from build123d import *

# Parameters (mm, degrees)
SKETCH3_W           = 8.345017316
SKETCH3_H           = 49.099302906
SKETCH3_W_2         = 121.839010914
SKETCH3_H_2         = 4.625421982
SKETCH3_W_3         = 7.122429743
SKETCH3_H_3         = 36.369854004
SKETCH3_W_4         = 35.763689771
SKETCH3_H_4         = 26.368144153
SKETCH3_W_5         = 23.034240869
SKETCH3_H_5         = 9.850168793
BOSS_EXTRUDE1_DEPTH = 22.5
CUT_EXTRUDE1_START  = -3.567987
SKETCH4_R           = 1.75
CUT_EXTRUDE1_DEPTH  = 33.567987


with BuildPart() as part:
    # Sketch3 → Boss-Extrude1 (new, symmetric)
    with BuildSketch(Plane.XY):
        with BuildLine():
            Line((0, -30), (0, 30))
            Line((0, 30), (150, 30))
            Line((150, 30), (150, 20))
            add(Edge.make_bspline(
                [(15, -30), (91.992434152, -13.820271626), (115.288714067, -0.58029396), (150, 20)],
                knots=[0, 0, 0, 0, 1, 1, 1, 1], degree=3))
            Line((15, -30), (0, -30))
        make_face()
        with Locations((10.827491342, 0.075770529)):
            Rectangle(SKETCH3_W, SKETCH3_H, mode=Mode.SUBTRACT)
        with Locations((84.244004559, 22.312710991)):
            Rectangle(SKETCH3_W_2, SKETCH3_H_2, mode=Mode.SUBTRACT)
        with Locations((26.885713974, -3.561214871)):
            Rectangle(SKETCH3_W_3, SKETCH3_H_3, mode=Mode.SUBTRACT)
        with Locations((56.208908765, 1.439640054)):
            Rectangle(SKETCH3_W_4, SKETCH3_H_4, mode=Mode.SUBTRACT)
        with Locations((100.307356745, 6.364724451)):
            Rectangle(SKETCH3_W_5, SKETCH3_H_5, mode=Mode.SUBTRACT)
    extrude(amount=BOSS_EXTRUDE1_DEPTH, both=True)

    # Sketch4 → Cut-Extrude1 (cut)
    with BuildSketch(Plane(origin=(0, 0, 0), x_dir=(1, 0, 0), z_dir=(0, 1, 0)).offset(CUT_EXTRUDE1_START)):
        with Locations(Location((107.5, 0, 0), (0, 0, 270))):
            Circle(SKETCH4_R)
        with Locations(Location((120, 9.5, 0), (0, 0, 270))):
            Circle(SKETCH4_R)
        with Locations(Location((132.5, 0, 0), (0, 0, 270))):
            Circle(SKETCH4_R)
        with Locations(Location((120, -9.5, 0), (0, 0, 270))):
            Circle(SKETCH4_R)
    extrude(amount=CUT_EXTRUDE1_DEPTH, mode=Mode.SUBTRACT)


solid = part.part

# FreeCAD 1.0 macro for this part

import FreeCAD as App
import Part
import Sketcher

V = App.Vector


def add_polygon(sketch, points):
    """Adds a closed chain of lines whose ends are joined by coincident constraints."""
    first, n = sketch.GeometryCount, len(points)
    for a, b in zip(points, points[1:] + points[:1]):
        sketch.addGeometry(Part.LineSegment(App.Vector(*a, 0), App.Vector(*b, 0)), False)
    for i in range(n):
        sketch.addConstraint(Sketcher.Constraint("Coincident", first + i, 2, first + (i + 1) % n, 1))

doc = App.newDocument("Part")
params = doc.addObject("Spreadsheet::Sheet", "Params")
for row, (alias, value) in enumerate([
    ("pad1_length", "45 mm"),
    ("sketch2_diameter", "3.5 mm"),
    ("pocket1_length", "33.567987 mm"),
], start=1):
    params.set(f"A{row}", alias)
    params.set(f"B{row}", "=" + value)
    params.setAlias(f"B{row}", alias)

body = doc.addObject("PartDesign::Body", "Body")

# Sketch on XY plane
sketch1 = body.newObject("Sketcher::SketchObject", "Sketch")
sketch1.AttachmentSupport = (doc.getObject("XY_Plane"), [""])
sketch1.MapMode = "FlatFace"
sketch1.addGeometry(Part.LineSegment(V(0, 30, 0), V(0, -30, 0)), False)  # 0
sketch1.addGeometry(Part.LineSegment(V(0, -30, 0), V(15, -30, 0)), False)  # 1
sketch1.addGeometry(Part.BSplineCurve([V(15, -30, 0), V(91.992434, -13.820272, 0), V(115.288714, -0.580294, 0), V(150, 20, 0)], [4, 4], [0, 1], False, 3, [1, 1, 1, 1], False), False)  # 2
sketch1.addGeometry(Part.LineSegment(V(150, 20, 0), V(150, 30, 0)), False)  # 3
sketch1.addGeometry(Part.LineSegment(V(150, 30, 0), V(0, 30, 0)), False)  # 4
add_polygon(sketch1, [(23.324499, -21.746142), (23.324499, 14.623712), (30.446929, 14.623712), (30.446929, -21.746142)])  # lines 5-8
add_polygon(sketch1, [(6.654983, -24.473881), (6.654983, 24.625422), (15, 24.625422), (15, -24.473881)])  # lines 9-12
add_polygon(sketch1, [(88.790236, 1.43964), (88.790236, 11.289809), (111.824477, 11.289809), (111.824477, 1.43964)])  # lines 13-16
add_polygon(sketch1, [(23.324499, 20), (23.324499, 24.625422), (145.16351, 24.625422), (145.16351, 20)])  # lines 17-20
add_polygon(sketch1, [(38.327064, -11.744432), (38.327064, 14.623712), (74.090754, 14.623712), (74.090754, -11.744432)])  # lines 21-24
sketch1.addConstraint(Sketcher.Constraint("Block", 2))
sketch1.addConstraint(Sketcher.Constraint("Coincident", 0, 2, 1, 1))
sketch1.addConstraint(Sketcher.Constraint("Coincident", 1, 2, 2, 1))
sketch1.addConstraint(Sketcher.Constraint("Coincident", 2, 2, 3, 1))
sketch1.addConstraint(Sketcher.Constraint("Coincident", 3, 2, 4, 1))
sketch1.addConstraint(Sketcher.Constraint("Coincident", 4, 2, 0, 1))
sketch1.addConstraint(Sketcher.Constraint("Vertical", 0))
sketch1.addConstraint(Sketcher.Constraint("Horizontal", 1))
sketch1.addConstraint(Sketcher.Constraint("Vertical", 3))
sketch1.addConstraint(Sketcher.Constraint("Horizontal", 4))
sketch1.addConstraint(Sketcher.Constraint("Vertical", 5))
sketch1.addConstraint(Sketcher.Constraint("Horizontal", 6))
sketch1.addConstraint(Sketcher.Constraint("Vertical", 7))
sketch1.addConstraint(Sketcher.Constraint("Horizontal", 8))
sketch1.addConstraint(Sketcher.Constraint("Vertical", 9))
sketch1.addConstraint(Sketcher.Constraint("Horizontal", 10))
sketch1.addConstraint(Sketcher.Constraint("Vertical", 11))
sketch1.addConstraint(Sketcher.Constraint("Horizontal", 12))
sketch1.addConstraint(Sketcher.Constraint("Vertical", 13))
sketch1.addConstraint(Sketcher.Constraint("Horizontal", 14))
sketch1.addConstraint(Sketcher.Constraint("Vertical", 15))
sketch1.addConstraint(Sketcher.Constraint("Horizontal", 16))
sketch1.addConstraint(Sketcher.Constraint("Vertical", 17))
sketch1.addConstraint(Sketcher.Constraint("Horizontal", 18))
sketch1.addConstraint(Sketcher.Constraint("Vertical", 19))
sketch1.addConstraint(Sketcher.Constraint("Horizontal", 20))
sketch1.addConstraint(Sketcher.Constraint("Vertical", 21))
sketch1.addConstraint(Sketcher.Constraint("Horizontal", 22))
sketch1.addConstraint(Sketcher.Constraint("Vertical", 23))
sketch1.addConstraint(Sketcher.Constraint("Horizontal", 24))
sketch1.addConstraint(Sketcher.Constraint("Symmetric", 0, 2, 4, 2, -1, 1))
sketch1.addConstraint(Sketcher.Constraint("Horizontal", 10, 2, 17, 2))
sketch1.addConstraint(Sketcher.Constraint("Horizontal", 6, 2, 21, 2))
sketch1.addConstraint(Sketcher.Constraint("Vertical", 1, 2, 10, 2))
sketch1.addConstraint(Sketcher.Constraint("Vertical", 8, 2, 17, 2))
sketch1.addConstraint(Sketcher.Constraint("DistanceY", -1, 1, 19, 2, 20.0))
sketch1.addConstraint(Sketcher.Constraint("DistanceX", 6, 1, 6, 2, 7.12243))
sketch1.addConstraint(Sketcher.Constraint("DistanceX", 14, 1, 14, 2, 23.034241))
sketch1.addConstraint(Sketcher.Constraint("DistanceX", 18, 1, 18, 2, 121.839011))
sketch1.addConstraint(Sketcher.Constraint("DistanceX", 22, 1, 22, 2, 35.76369))
sketch1.addConstraint(Sketcher.Constraint("DistanceY", 13, 1, 13, 2, 9.850169))
sketch1.addConstraint(Sketcher.Constraint("DistanceY", 17, 1, 17, 2, 4.625422))
sketch1.addConstraint(Sketcher.Constraint("DistanceX", -1, 1, 5, 2, 23.324499))
sketch1.addConstraint(Sketcher.Constraint("DistanceX", 10, 1, 10, 2, 8.345017))
sketch1.addConstraint(Sketcher.Constraint("DistanceY", 5, 1, 5, 2, 36.369854))
sketch1.addConstraint(Sketcher.Constraint("DistanceY", 9, 1, 9, 2, 49.099303))
sketch1.addConstraint(Sketcher.Constraint("DistanceY", 21, 1, 21, 2, 26.368144))
sketch1.addConstraint(Sketcher.Constraint("DistanceY", 7, 2, -1, 1, 21.746142))
sketch1.addConstraint(Sketcher.Constraint("DistanceY", -1, 1, 13, 2, 11.289809))
sketch1.addConstraint(Sketcher.Constraint("DistanceX", 6, 2, 14, 2, 81.377548))
sketch1.addConstraint(Sketcher.Constraint("DistanceX", -1, 1, 21, 2, 38.327064))
pad1 = body.newObject("PartDesign::Pad", "Pad")
pad1.Profile = sketch1
pad1.setExpression("Length", "Params.pad1_length")
pad1.Midplane = True

# Sketch on XZ plane
sketch2 = body.newObject("Sketcher::SketchObject", "Sketch001")
sketch2.AttachmentSupport = (doc.getObject("XZ_Plane"), [""])
sketch2.MapMode = "FlatFace"
sketch2.AttachmentOffset = App.Placement(V(0, 0, 3.567987), App.Rotation())
sketch2.addGeometry(Part.Circle(V(107.5, 0, 0), V(0, 0, 1), 1.75), False)
sketch2.addGeometry(Part.Circle(V(120, -9.5, 0), V(0, 0, 1), 1.75), False)
sketch2.addGeometry(Part.Circle(V(132.5, 0, 0), V(0, 0, 1), 1.75), False)
sketch2.addGeometry(Part.Circle(V(120, 9.5, 0), V(0, 0, 1), 1.75), False)
sketch2.addConstraint(Sketcher.Constraint("Equal", 0, 1))
sketch2.addConstraint(Sketcher.Constraint("Equal", 1, 2))
sketch2.addConstraint(Sketcher.Constraint("Equal", 2, 3))
sketch2.addConstraint(Sketcher.Constraint("Symmetric", 1, 3, 3, 3, -1))
sketch2.addConstraint(Sketcher.Constraint("PointOnObject", 0, 3, -1))
sketch2.addConstraint(Sketcher.Constraint("PointOnObject", 2, 3, -1))
sketch2.addConstraint(Sketcher.Constraint("Diameter", 0, 3.5))
sketch2.addConstraint(Sketcher.Constraint("DistanceX", -1, 1, 1, 3, 120.0))
sketch2.addConstraint(Sketcher.Constraint("DistanceX", 0, 3, 2, 3, 25.0))
sketch2.addConstraint(Sketcher.Constraint("DistanceY", 1, 3, 3, 3, 19.0))
sketch2.addConstraint(Sketcher.Constraint("DistanceX", -1, 1, 0, 3, 107.5))
sketch2.setExpression("Constraints[6]", "Params.sketch2_diameter")
pocket1 = body.newObject("PartDesign::Pocket", "Pocket")
pocket1.Profile = sketch2
pocket1.setExpression("Length", "Params.pocket1_length")

doc.recompute()
